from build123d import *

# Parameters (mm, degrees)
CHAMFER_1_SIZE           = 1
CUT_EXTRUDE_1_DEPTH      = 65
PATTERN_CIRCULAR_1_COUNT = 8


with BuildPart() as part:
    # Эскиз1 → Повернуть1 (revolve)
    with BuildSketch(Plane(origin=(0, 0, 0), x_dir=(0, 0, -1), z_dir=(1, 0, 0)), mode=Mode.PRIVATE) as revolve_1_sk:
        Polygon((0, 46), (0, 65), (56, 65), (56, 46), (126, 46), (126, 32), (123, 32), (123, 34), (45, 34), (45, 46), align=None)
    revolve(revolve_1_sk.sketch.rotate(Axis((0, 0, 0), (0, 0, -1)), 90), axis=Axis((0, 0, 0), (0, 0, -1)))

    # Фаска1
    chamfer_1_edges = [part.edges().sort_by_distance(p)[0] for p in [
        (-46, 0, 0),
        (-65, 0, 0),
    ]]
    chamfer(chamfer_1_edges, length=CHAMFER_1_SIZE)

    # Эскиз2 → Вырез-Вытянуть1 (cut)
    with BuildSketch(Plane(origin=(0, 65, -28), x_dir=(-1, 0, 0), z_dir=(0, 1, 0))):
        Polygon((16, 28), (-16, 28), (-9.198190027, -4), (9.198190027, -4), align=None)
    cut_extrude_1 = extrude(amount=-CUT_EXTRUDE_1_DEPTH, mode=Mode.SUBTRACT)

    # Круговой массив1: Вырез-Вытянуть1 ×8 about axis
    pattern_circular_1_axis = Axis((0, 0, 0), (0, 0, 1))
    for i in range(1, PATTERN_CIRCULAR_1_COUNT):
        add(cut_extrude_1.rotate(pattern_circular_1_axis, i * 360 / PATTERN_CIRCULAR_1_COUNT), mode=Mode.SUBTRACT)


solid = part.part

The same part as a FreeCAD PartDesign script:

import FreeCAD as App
import Part
import Sketcher
from FreeCAD import Vector
Q = App.Units.Quantity


def edges_at(feature, points):
    """Names of the edges that pass closest to the given points."""
    edges = feature.Shape.Edges
    near = lambda p: min(range(len(edges)), key=lambda i: edges[i].distToShape(Part.Vertex(*p))[0])
    return sorted({f"Edge{near(p) + 1}" for p in points})

doc = App.newDocument("Part")
params = doc.addObject("Spreadsheet::Sheet", "Params")
for row, (alias, value) in enumerate([
    ("sketch1_width", "19 mm"),
    ("sketch1_width2", "12 mm"),
    ("sketch1_width3", "2 mm"),
    ("sketch1_height", "45 mm"),
    ("sketch1_height2", "78 mm"),
    ("revolution_angle", "360 deg"),
    ("chamfer_size", "1 mm"),
    ("sketch2_width", "32 mm"),
    ("pocket1_length", "65 mm"),
], start=1):
    params.set(f"A{row}", alias)
    params.set(f"B{row}", "=" + value)
    params.setAlias(f"B{row}", alias)

body = doc.addObject("PartDesign::Body", "Body")

sketch1 = doc.addObject("Sketcher::SketchObject", "Sketch")
body.addObject(sketch1)
sketch1.AttachmentSupport = (doc.YZ_Plane, [""])
sketch1.MapMode = "FlatFace"
sketch1.addGeometry(Part.LineSegment(Vector(65, 0, 0), Vector(46, 0, 0)), False)
sketch1.addGeometry(Part.LineSegment(Vector(46, 0, 0), Vector(46, -45, 0)), False)
sketch1.addGeometry(Part.LineSegment(Vector(46, -45, 0), Vector(34, -45, 0)), False)
sketch1.addGeometry(Part.LineSegment(Vector(34, -45, 0), Vector(34, -123, 0)), False)
sketch1.addGeometry(Part.LineSegment(Vector(34, -123, 0), Vector(32, -123, 0)), False)
sketch1.addGeometry(Part.LineSegment(Vector(32, -123, 0), Vector(32, -126, 0)), False)
sketch1.addGeometry(Part.LineSegment(Vector(32, -126, 0), Vector(46, -126, 0)), False)
sketch1.addGeometry(Part.LineSegment(Vector(46, -126, 0), Vector(46, -56, 0)), False)
sketch1.addGeometry(Part.LineSegment(Vector(46, -56, 0), Vector(65, -56, 0)), False)
sketch1.addGeometry(Part.LineSegment(Vector(65, -56, 0), Vector(65, 0, 0)), False)
sketch1.addConstraint(Sketcher.Constraint("Coincident", 0, 2, 1, 1))
sketch1.addConstraint(Sketcher.Constraint("Coincident", 1, 2, 2, 1))
sketch1.addConstraint(Sketcher.Constraint("Coincident", 2, 2, 3, 1))
sketch1.addConstraint(Sketcher.Constraint("Coincident", 3, 2, 4, 1))
sketch1.addConstraint(Sketcher.Constraint("Coincident", 4, 2, 5, 1))
sketch1.addConstraint(Sketcher.Constraint("Coincident", 5, 2, 6, 1))
sketch1.addConstraint(Sketcher.Constraint("Coincident", 6, 2, 7, 1))
sketch1.addConstraint(Sketcher.Constraint("Coincident", 7, 2, 8, 1))
sketch1.addConstraint(Sketcher.Constraint("Coincident", 8, 2, 9, 1))
sketch1.addConstraint(Sketcher.Constraint("Coincident", 9, 2, 0, 1))
sketch1.addConstraint(Sketcher.Constraint("Horizontal", 0))
sketch1.addConstraint(Sketcher.Constraint("Vertical", 1))
sketch1.addConstraint(Sketcher.Constraint("Horizontal", 2))
sketch1.addConstraint(Sketcher.Constraint("Vertical", 3))
sketch1.addConstraint(Sketcher.Constraint("Horizontal", 4))
sketch1.addConstraint(Sketcher.Constraint("Vertical", 5))
sketch1.addConstraint(Sketcher.Constraint("Horizontal", 6))
sketch1.addConstraint(Sketcher.Constraint("Vertical", 7))
sketch1.addConstraint(Sketcher.Constraint("Horizontal", 8))
sketch1.addConstraint(Sketcher.Constraint("Vertical", 9))
sketch1.addConstraint(Sketcher.Constraint("PointOnObject", 0, 2, -1))
sketch1.addConstraint(Sketcher.Constraint("Vertical", 1, 2, 6, 2))
sketch1.addConstraint(Sketcher.Constraint("DistanceX", 0, 2, 0, 1, Q("19 mm")))
sketch1.addConstraint(Sketcher.Constraint("DistanceX", 2, 2, 2, 1, Q("12 mm")))
sketch1.addConstraint(Sketcher.Constraint("DistanceX", 4, 2, 4, 1, Q("2 mm")))
sketch1.addConstraint(Sketcher.Constraint("DistanceY", 1, 2, 1, 1, Q("45 mm")))
sketch1.addConstraint(Sketcher.Constraint("DistanceY", 3, 2, 3, 1, Q("78 mm")))
sketch1.addConstraint(Sketcher.Constraint("DistanceY", 5, 2, 5, 1, Q("3 mm")))
sketch1.addConstraint(Sketcher.Constraint("DistanceY", 7, 1, 7, 2, Q("70 mm")))
sketch1.addConstraint(Sketcher.Constraint("DistanceX", -1, 1, 0, 2, Q("46 mm")))
sketch1.setExpression("Constraints[22]", "Params.sketch1_width")
sketch1.setExpression("Constraints[23]", "Params.sketch1_width2")
sketch1.setExpression("Constraints[24]", "Params.sketch1_width3")
sketch1.setExpression("Constraints[25]", "Params.sketch1_height")
sketch1.setExpression("Constraints[26]", "Params.sketch1_height2")
revolution = doc.addObject("PartDesign::Revolution", "Revolution")
body.addObject(revolution)
revolution.Profile = sketch1
revolution.ReferenceAxis = (sketch1, ["V_Axis"])
revolution.setExpression("Angle", "Params.revolution_angle")
doc.recompute()

chamfer = doc.addObject("PartDesign::Chamfer", "Chamfer")
body.addObject(chamfer)
chamfer.Base = (revolution, edges_at(revolution, [(-46, 0, 0), (-65, 0, 0)]))
chamfer.setExpression("Size", "Params.chamfer_size")

sketch2 = doc.addObject("Sketcher::SketchObject", "Sketch001")
body.addObject(sketch2)
sketch2.AttachmentSupport = (doc.XZ_Plane, [""])
sketch2.MapMode = "FlatFace"
sketch2.AttachmentOffset = App.Placement(Vector(0, 0, -65), App.Rotation())
sketch2.addGeometry(Part.LineSegment(Vector(-16, 0, 0), Vector(16, 0, 0)), False)
sketch2.addGeometry(Part.LineSegment(Vector(16, 0, 0), Vector(9.19819, -32, 0)), False)
sketch2.addGeometry(Part.LineSegment(Vector(9.19819, -32, 0), Vector(-9.19819, -32, 0)), False)
sketch2.addGeometry(Part.LineSegment(Vector(-9.19819, -32, 0), Vector(-16, 0, 0)), False)
sketch2.addConstraint(Sketcher.Constraint("Coincident", 0, 2, 1, 1))
sketch2.addConstraint(Sketcher.Constraint("Coincident", 1, 2, 2, 1))
sketch2.addConstraint(Sketcher.Constraint("Coincident", 2, 2, 3, 1))
sketch2.addConstraint(Sketcher.Constraint("Coincident", 3, 2, 0, 1))
sketch2.addConstraint(Sketcher.Constraint("Horizontal", 0))
sketch2.addConstraint(Sketcher.Constraint("Horizontal", 2))
sketch2.addConstraint(Sketcher.Constraint("Symmetric", 0, 2, 3, 2, -1, 1))
sketch2.addConstraint(Sketcher.Constraint("Equal", 1, 3))
sketch2.addConstraint(Sketcher.Constraint("DistanceX", 0, 1, 0, 2, Q("32 mm")))
sketch2.addConstraint(Sketcher.Constraint("Angle", 1, Q("-102 deg")))
sketch2.addConstraint(Sketcher.Constraint("DistanceY", 1, 2, -1, 1, Q("32 mm")))
sketch2.setExpression("Constraints[8]", "Params.sketch2_width")
pocket1 = doc.addObject("PartDesign::Pocket", "Pocket")
body.addObject(pocket1)
pocket1.Profile = sketch2
pocket1.setExpression("Length", "Params.pocket1_length")
pocket1.Reversed = True
doc.recompute()

polarpattern = doc.addObject("PartDesign::PolarPattern", "PolarPattern")
body.addObject(polarpattern)
polarpattern.Originals = [pocket1]
polarpattern.Axis = (doc.Z_Axis, [""])
polarpattern.Angle = 360
polarpattern.Occurrences = 8
body.Tip = polarpattern

doc.recompute()
